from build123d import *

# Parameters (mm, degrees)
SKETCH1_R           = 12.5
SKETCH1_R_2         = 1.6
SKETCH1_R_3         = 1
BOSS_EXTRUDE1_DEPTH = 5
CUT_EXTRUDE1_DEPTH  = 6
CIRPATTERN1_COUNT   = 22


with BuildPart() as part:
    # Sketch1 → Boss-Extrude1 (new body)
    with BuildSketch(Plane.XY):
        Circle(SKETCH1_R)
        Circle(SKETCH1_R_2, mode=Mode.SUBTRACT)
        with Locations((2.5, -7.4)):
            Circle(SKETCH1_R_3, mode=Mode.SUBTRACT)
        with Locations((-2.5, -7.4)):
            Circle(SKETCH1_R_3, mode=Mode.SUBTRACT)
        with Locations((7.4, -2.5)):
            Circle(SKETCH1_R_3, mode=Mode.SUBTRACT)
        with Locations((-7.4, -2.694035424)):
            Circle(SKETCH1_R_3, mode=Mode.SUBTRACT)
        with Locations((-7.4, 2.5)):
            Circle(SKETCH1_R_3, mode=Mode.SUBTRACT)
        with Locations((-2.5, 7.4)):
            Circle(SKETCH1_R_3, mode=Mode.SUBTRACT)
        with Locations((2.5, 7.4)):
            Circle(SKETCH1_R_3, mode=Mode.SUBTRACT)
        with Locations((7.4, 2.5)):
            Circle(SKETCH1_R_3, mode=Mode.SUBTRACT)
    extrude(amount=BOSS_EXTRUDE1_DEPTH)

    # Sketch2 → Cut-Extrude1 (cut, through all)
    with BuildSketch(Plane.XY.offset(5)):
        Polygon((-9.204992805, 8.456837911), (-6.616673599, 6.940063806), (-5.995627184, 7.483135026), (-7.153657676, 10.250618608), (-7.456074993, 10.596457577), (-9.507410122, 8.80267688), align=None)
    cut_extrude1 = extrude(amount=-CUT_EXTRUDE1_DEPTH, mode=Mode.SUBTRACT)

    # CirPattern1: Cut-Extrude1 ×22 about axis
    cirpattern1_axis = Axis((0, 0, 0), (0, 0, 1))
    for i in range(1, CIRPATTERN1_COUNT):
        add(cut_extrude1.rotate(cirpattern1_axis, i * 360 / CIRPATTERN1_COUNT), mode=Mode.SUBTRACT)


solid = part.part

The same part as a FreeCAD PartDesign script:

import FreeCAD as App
import Part
import Sketcher

V = App.Vector
Q = App.Units.Quantity


def add_polygon(sketch, points):
    """Adds a closed chain of lines whose ends are joined by coincident constraints."""
    first, n = sketch.GeometryCount, len(points)
    for a, b in zip(points, points[1:] + points[:1]):
        sketch.addGeometry(Part.LineSegment(App.Vector(*a, 0), App.Vector(*b, 0)), False)
    for i in range(n):
        sketch.addConstraint(Sketcher.Constraint("Coincident", first + i, 2, first + (i + 1) % n, 1))

doc = App.newDocument("Part")
body = doc.addObject("PartDesign::Body", "Body")

# Sketch on XY plane
sketch1 = body.newObject("Sketcher::SketchObject", "Sketch")
sketch1.AttachmentSupport = (doc.getObject("XY_Plane"), [""])
sketch1.MapMode = "FlatFace"
sketch1.addGeometry(Part.Circle(V(0, 0, 0), V(0, 0, 1), 12.5), False)
sketch1.addGeometry(Part.Circle(V(-2.5, -7.4, 0), V(0, 0, 1), 1), False)
sketch1.addGeometry(Part.Circle(V(-7.4, -2.694035, 0), V(0, 0, 1), 1), False)
sketch1.addGeometry(Part.Circle(V(2.5, -7.4, 0), V(0, 0, 1), 1), False)
sketch1.addGeometry(Part.Circle(V(7.4, -2.5, 0), V(0, 0, 1), 1), False)
sketch1.addGeometry(Part.Circle(V(-7.4, 2.5, 0), V(0, 0, 1), 1), False)
sketch1.addGeometry(Part.Circle(V(-2.5, 7.4, 0), V(0, 0, 1), 1), False)
sketch1.addGeometry(Part.Circle(V(0, 0, 0), V(0, 0, 1), 1.6), False)
sketch1.addGeometry(Part.Circle(V(7.4, 2.5, 0), V(0, 0, 1), 1), False)
sketch1.addGeometry(Part.Circle(V(2.5, 7.4, 0), V(0, 0, 1), 1), False)
sketch1.addConstraint(Sketcher.Constraint("Coincident", 0, 3, -1, 1))
sketch1.addConstraint(Sketcher.Constraint("Coincident", 7, 3, -1, 1))
sketch1.addConstraint(Sketcher.Constraint("Equal", 1, 2))
sketch1.addConstraint(Sketcher.Constraint("Equal", 2, 3))
sketch1.addConstraint(Sketcher.Constraint("Equal", 3, 4))
sketch1.addConstraint(Sketcher.Constraint("Equal", 4, 5))
sketch1.addConstraint(Sketcher.Constraint("Equal", 5, 6))
sketch1.addConstraint(Sketcher.Constraint("Equal", 6, 8))
sketch1.addConstraint(Sketcher.Constraint("Equal", 8, 9))
sketch1.addConstraint(Sketcher.Constraint("Symmetric", 4, 3, 5, 3, -1, 1))
sketch1.addConstraint(Sketcher.Constraint("Symmetric", 3, 3, 6, 3, -1, 1))
sketch1.addConstraint(Sketcher.Constraint("Symmetric", 1, 3, 9, 3, -1, 1))
sketch1.addConstraint(Sketcher.Constraint("Symmetric", 1, 3, 3, 3, -2))
sketch1.addConstraint(Sketcher.Constraint("Symmetric", 5, 3, 8, 3, -2))
sketch1.addConstraint(Sketcher.Constraint("Vertical", 2, 3, 5, 3))
sketch1.addConstraint(Sketcher.Constraint("Diameter", 0, Q("25 mm")))
sketch1.addConstraint(Sketcher.Constraint("Diameter", 1, Q("2 mm")))
sketch1.addConstraint(Sketcher.Constraint("Diameter", 7, Q("3.2 mm")))
sketch1.addConstraint(Sketcher.Constraint("DistanceX", 1, 3, 3, 3, Q("5 mm")))
sketch1.addConstraint(Sketcher.Constraint("DistanceY", 4, 3, 5, 3, Q("5 mm")))
sketch1.addConstraint(Sketcher.Constraint("DistanceY", 1, 3, -1, 1, Q("7.4 mm")))
sketch1.addConstraint(Sketcher.Constraint("DistanceX", 2, 3, -1, 1, Q("7.4 mm")))
sketch1.addConstraint(Sketcher.Constraint("DistanceY", 2, 3, -1, 1, Q("2.694035 mm")))
pad1 = body.newObject("PartDesign::Pad", "Pad")
pad1.Profile = sketch1
pad1.Length = 5

# Sketch on XY plane
sketch2 = body.newObject("Sketcher::SketchObject", "Sketch001")
sketch2.AttachmentSupport = (doc.getObject("XY_Plane"), [""])
sketch2.MapMode = "FlatFace"
sketch2.AttachmentOffset = App.Placement(V(0, 0, 5), App.Rotation())
add_polygon(sketch2, [(-9.204993, 8.456838), (-6.616674, 6.940064), (-5.995627, 7.483135), (-7.153658, 10.250619), (-7.456075, 10.596458), (-9.50741, 8.802677)])  # lines 0-5
sketch2.addConstraint(Sketcher.Constraint("Perpendicular", 1, 3))
sketch2.addConstraint(Sketcher.Constraint("Perpendicular", 3, 4))
sketch2.addConstraint(Sketcher.Constraint("Perpendicular", 4, 5))
sketch2.addConstraint(Sketcher.Constraint("Equal", 0, 2))
sketch2.addConstraint(Sketcher.Constraint("Equal", 3, 5))
sketch2.addConstraint(Sketcher.Constraint("Distance", 0, Q("3 mm")))
sketch2.addConstraint(Sketcher.Constraint("Distance", 1, Q("0.825 mm")))
sketch2.addConstraint(Sketcher.Constraint("Distance", 4, Q("2.725 mm")))
sketch2.addConstraint(Sketcher.Constraint("DistanceX", 3, 2, 0, 2, Q("0.839401 mm")))
sketch2.addConstraint(Sketcher.Constraint("DistanceY", -1, 1, 2, 2, Q("10.250619 mm")))
sketch2.addConstraint(Sketcher.Constraint("DistanceX", 4, 2, -1, 1, Q("9.50741 mm")))
sketch2.addConstraint(Sketcher.Constraint("DistanceY", 0, 2, 1, 2, Q("0.543071 mm")))
pocket1 = body.newObject("PartDesign::Pocket", "Pocket")
pocket1.Profile = sketch2
pocket1.Type = "ThroughAll"
doc.recompute()

polarpattern = body.newObject("PartDesign::PolarPattern", "PolarPattern")
polarpattern.Originals = [pocket1]
polarpattern.Axis = (doc.getObject("Z_Axis"), [""])
polarpattern.Angle = 360
polarpattern.Occurrences = 22
body.Tip = polarpattern

doc.recompute()
